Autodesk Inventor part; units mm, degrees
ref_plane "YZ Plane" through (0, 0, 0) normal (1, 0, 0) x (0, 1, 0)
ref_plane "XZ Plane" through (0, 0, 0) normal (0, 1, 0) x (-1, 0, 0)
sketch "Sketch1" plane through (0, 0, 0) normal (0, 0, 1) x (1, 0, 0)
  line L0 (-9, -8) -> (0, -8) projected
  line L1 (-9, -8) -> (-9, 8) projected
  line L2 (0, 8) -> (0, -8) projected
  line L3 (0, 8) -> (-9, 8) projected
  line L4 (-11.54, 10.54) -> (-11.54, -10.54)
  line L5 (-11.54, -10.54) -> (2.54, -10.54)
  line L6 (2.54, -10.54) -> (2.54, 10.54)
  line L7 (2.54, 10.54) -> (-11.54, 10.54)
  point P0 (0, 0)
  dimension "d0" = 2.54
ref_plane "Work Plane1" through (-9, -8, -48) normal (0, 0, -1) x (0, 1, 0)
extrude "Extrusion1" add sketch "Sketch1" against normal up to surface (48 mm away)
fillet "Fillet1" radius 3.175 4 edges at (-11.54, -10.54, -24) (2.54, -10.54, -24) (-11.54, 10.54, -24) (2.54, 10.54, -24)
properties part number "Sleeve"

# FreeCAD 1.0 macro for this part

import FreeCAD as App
import Part
import Sketcher
from FreeCAD import Vector
Q = App.Units.Quantity


def edges_at(feature, points):
    """Names of the edges that pass closest to the given points."""
    edges = feature.Shape.Edges
    near = lambda p: min(range(len(edges)), key=lambda i: edges[i].distToShape(Part.Vertex(*p))[0])
    return sorted({f"Edge{near(p) + 1}" for p in points})

doc = App.newDocument("Part")
params = doc.addObject("Spreadsheet::Sheet", "Params")
for row, (alias, value) in enumerate([
    ("sketch1_width", "9 mm"),
    ("sketch1_height", "16 mm"),
    ("pad1_length", "48 mm"),
    ("fillet_radius", "3.175 mm"),
], start=1):
    params.set(f"A{row}", alias)
    params.set(f"B{row}", "=" + value)
    params.setAlias(f"B{row}", alias)

body = doc.addObject("PartDesign::Body", "Body")

sketch1 = body.newObject("Sketcher::SketchObject", "Sketch")
sketch1.AttachmentSupport = (doc.getObject("XY_Plane"), [""])
sketch1.MapMode = "FlatFace"
sketch1.addGeometry([
    Part.LineSegment(Vector(3, 11, 0), Vector(-12, 11, 0)),
    Part.LineSegment(Vector(-12, 11, 0), Vector(-12, -11, 0)),
    Part.LineSegment(Vector(-12, -11, 0), Vector(3, -11, 0)),
    Part.LineSegment(Vector(3, -11, 0), Vector(3, 11, 0)),
    Part.LineSegment(Vector(0, -8, 0), Vector(-9, -8, 0)),
    Part.LineSegment(Vector(-9, -8, 0), Vector(-9, 8, 0)),
    Part.LineSegment(Vector(-9, 8, 0), Vector(0, 8, 0)),
    Part.LineSegment(Vector(0, 8, 0), Vector(0, -8, 0)),
], False)
sketch1.addConstraint([
    Sketcher.Constraint("Coincident", 0, 2, 1, 1),
    Sketcher.Constraint("Coincident", 1, 2, 2, 1),
    Sketcher.Constraint("Coincident", 2, 2, 3, 1),
    Sketcher.Constraint("Coincident", 3, 2, 0, 1),
    Sketcher.Constraint("Coincident", 4, 2, 5, 1),
    Sketcher.Constraint("Coincident", 5, 2, 6, 1),
    Sketcher.Constraint("Coincident", 6, 2, 7, 1),
    Sketcher.Constraint("Coincident", 7, 2, 4, 1),
    Sketcher.Constraint("Horizontal", 0),
    Sketcher.Constraint("Vertical", 1),
    Sketcher.Constraint("Horizontal", 2),
    Sketcher.Constraint("Vertical", 3),
    Sketcher.Constraint("Horizontal", 4),
    Sketcher.Constraint("Vertical", 5),
    Sketcher.Constraint("Horizontal", 6),
    Sketcher.Constraint("Vertical", 7),
    Sketcher.Constraint("Symmetric", 6, 2, 7, 2, -1, 1),
    Sketcher.Constraint("DistanceX", 4, 2, 4, 1, Q("9 mm")),
    Sketcher.Constraint("DistanceY", 5, 1, 5, 2, Q("16 mm")),
    Sketcher.Constraint("DistanceX", -1, 1, 2, 2, Q("2.54 mm")),
    Sketcher.Constraint("DistanceX", 1, 2, 4, 2, Q("2.54 mm")),
    Sketcher.Constraint("DistanceY", 1, 2, 4, 2, Q("2.54 mm")),
    Sketcher.Constraint("DistanceY", 5, 2, 0, 2, Q("2.54 mm")),
])
sketch1.setExpression("Constraints[17]", "Params.sketch1_width")
sketch1.setExpression("Constraints[18]", "Params.sketch1_height")
pad1 = body.newObject("PartDesign::Pad", "Pad")
pad1.Profile = sketch1
pad1.setExpression("Length", "Params.pad1_length")
pad1.Reversed = True
doc.recompute()

fillet = body.newObject("PartDesign::Fillet", "Fillet")
fillet.Base = (pad1, edges_at(pad1, [
    (-11.54, -10.54, -24),
    (2.54, -10.54, -24),
    (-11.54, 10.54, -24),
    (2.54, 10.54, -24),
]))
fillet.setExpression("Radius", "Params.fillet_radius")

doc.recompute()
